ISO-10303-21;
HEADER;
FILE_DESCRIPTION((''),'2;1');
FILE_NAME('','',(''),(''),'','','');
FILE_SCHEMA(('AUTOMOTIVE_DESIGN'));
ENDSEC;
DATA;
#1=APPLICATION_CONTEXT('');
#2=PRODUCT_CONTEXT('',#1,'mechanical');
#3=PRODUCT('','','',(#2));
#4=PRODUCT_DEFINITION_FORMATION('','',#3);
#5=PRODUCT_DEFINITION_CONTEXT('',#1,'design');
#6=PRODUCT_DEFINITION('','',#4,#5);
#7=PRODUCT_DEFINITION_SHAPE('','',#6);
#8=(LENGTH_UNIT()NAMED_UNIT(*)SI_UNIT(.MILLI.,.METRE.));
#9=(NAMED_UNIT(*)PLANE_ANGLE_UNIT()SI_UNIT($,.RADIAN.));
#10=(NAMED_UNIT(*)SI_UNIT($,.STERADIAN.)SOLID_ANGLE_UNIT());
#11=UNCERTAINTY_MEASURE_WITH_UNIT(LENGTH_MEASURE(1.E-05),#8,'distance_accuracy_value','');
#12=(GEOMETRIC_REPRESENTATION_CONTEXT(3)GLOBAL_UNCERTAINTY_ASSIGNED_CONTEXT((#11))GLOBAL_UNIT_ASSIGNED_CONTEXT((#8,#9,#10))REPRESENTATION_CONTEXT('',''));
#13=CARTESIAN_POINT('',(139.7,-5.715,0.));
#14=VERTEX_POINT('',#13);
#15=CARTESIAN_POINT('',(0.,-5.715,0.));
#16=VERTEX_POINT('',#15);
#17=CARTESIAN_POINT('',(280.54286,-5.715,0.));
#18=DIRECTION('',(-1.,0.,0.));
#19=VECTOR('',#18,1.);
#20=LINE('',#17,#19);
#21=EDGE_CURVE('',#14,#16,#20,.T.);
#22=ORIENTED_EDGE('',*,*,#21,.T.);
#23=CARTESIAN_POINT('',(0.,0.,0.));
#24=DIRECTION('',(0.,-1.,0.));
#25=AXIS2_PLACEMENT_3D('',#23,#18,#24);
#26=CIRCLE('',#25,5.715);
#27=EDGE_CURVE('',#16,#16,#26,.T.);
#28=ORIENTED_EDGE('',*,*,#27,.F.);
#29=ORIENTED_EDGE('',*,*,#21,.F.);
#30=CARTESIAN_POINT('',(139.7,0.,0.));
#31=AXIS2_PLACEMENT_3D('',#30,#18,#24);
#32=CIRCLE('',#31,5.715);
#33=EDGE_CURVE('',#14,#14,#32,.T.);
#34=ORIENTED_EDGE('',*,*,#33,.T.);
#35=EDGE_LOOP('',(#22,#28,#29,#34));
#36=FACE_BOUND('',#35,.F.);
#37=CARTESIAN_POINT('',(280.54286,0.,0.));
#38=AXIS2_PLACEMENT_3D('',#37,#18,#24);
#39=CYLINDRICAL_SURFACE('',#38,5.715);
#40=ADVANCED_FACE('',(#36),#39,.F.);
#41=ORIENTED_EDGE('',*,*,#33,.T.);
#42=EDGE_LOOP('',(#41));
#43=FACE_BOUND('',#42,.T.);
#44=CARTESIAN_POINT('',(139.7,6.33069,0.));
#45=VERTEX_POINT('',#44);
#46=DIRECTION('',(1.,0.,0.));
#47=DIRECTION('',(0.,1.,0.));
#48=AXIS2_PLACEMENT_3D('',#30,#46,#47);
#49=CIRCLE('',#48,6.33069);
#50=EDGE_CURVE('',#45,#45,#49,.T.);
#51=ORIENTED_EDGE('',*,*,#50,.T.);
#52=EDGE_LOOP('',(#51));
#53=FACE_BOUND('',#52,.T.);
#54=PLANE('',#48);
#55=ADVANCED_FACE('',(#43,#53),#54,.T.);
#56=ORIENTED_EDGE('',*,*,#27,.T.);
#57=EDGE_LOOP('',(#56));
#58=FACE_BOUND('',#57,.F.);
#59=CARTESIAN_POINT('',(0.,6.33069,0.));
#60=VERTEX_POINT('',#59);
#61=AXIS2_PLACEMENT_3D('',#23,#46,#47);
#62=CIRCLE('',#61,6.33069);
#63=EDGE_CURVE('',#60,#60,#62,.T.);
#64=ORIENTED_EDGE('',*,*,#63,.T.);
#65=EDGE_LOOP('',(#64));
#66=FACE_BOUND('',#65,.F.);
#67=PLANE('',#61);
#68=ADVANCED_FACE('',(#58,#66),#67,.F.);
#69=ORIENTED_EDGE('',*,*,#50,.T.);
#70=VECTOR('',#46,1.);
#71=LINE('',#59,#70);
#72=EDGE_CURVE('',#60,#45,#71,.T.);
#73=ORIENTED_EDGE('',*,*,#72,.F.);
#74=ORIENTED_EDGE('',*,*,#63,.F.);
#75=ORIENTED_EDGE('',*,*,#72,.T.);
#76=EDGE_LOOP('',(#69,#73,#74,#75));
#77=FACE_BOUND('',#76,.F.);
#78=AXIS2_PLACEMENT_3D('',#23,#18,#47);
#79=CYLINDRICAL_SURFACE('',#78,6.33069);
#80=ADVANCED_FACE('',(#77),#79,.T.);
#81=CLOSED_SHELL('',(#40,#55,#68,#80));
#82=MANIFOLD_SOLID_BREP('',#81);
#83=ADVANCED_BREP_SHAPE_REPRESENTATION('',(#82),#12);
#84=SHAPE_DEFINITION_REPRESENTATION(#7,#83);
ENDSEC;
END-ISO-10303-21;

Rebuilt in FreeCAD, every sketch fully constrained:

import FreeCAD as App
import Part
import Sketcher

V = App.Vector
Q = App.Units.Quantity

doc = App.newDocument("Part")
body = doc.addObject("PartDesign::Body", "Body")

# Sketch on YZ plane
sketch1 = doc.addObject("Sketcher::SketchObject", "Sketch")
body.addObject(sketch1)
sketch1.AttachmentSupport = (doc.YZ_Plane, [""])
sketch1.MapMode = "FlatFace"
sketch1.addGeometry(Part.Circle(V(0, 0, 0), V(0, 0, 1), 6), False)
sketch1.addConstraint([
    Sketcher.Constraint("Coincident", 0, 3, -1, 1),
    Sketcher.Constraint("Diameter", 0, Q("12.66138 mm")),
])
pad1 = doc.addObject("PartDesign::Pad", "Pad")
body.addObject(pad1)
pad1.Profile = sketch1
pad1.Length = Q("5.5 in")

# Sketch on YZ plane
sketch2 = doc.addObject("Sketcher::SketchObject", "Sketch001")
body.addObject(sketch2)
sketch2.AttachmentSupport = (doc.YZ_Plane, [""])
sketch2.MapMode = "FlatFace"
sketch2.AttachmentOffset = App.Placement(V(0, 0, 5.5 * 25.4), App.Rotation())
sketch2.addGeometry(Part.Circle(V(0, 0, 0), V(0, 0, 1), 6), False)
sketch2.addConstraint([
    Sketcher.Constraint("Coincident", 0, 3, -1, 1),
    Sketcher.Constraint("Diameter", 0, Q("0.45 in")),
])
doc.recompute()
hole = doc.addObject("PartDesign::Hole", "Hole")
body.addObject(hole)
hole.Profile = sketch2
hole.ThreadType = "None"
hole.Diameter = Q("0.45 in")
hole.DepthType = "ThroughAll"

doc.recompute()
